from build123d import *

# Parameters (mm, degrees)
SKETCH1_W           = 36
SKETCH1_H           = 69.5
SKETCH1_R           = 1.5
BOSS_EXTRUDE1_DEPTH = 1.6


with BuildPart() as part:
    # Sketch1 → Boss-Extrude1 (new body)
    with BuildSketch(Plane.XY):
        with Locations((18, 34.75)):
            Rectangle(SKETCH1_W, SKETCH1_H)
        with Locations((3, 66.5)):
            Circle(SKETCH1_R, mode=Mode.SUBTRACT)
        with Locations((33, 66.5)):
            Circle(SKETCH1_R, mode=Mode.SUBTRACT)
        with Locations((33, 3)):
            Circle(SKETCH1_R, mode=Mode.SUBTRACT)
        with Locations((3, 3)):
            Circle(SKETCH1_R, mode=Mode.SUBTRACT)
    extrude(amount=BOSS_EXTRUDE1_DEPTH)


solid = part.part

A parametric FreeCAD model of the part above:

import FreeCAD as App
import Part
import Sketcher

V = App.Vector


def add_polygon(sketch, points):
    """Adds a closed chain of lines whose ends are joined by coincident constraints."""
    first, n = sketch.GeometryCount, len(points)
    for a, b in zip(points, points[1:] + points[:1]):
        sketch.addGeometry(Part.LineSegment(App.Vector(*a, 0), App.Vector(*b, 0)), False)
    for i in range(n):
        sketch.addConstraint(Sketcher.Constraint("Coincident", first + i, 2, first + (i + 1) % n, 1))

doc = App.newDocument("Part")
body = doc.addObject("PartDesign::Body", "Body")

# Sketch on XY plane
sketch1 = body.newObject("Sketcher::SketchObject", "Sketch")
sketch1.AttachmentSupport = (doc.getObject("XY_Plane"), [""])
sketch1.MapMode = "FlatFace"
add_polygon(sketch1, [(0, 69.5), (0, 0), (36, 0), (36, 69.5)])  # lines 0-3
sketch1.addGeometry(Part.Circle(V(3, 3, 0), V(0, 0, 1), 1.5), False)  # 4
sketch1.addGeometry(Part.Circle(V(33, 3, 0), V(0, 0, 1), 1.5), False)  # 5
sketch1.addGeometry(Part.Circle(V(3, 66.5, 0), V(0, 0, 1), 1.5), False)  # 6
sketch1.addGeometry(Part.Circle(V(33, 66.5, 0), V(0, 0, 1), 1.5), False)  # 7
sketch1.addConstraint([
    Sketcher.Constraint("Vertical", 0),
    Sketcher.Constraint("Horizontal", 1),
    Sketcher.Constraint("Vertical", 2),
    Sketcher.Constraint("Horizontal", 3),
    Sketcher.Constraint("Coincident", 0, 2, -1, 1),
    Sketcher.Constraint("Equal", 4, 5),
    Sketcher.Constraint("Equal", 5, 6),
    Sketcher.Constraint("Equal", 6, 7),
    Sketcher.Constraint("Horizontal", 4, 3, 5, 3),
    Sketcher.Constraint("Horizontal", 6, 3, 7, 3),
    Sketcher.Constraint("Vertical", 4, 3, 6, 3),
    Sketcher.Constraint("Vertical", 5, 3, 7, 3),
    Sketcher.Constraint("Diameter", 4, 3.0),
    Sketcher.Constraint("DistanceX", 1, 1, 1, 2, 36.0),
    Sketcher.Constraint("DistanceY", 0, 2, 0, 1, 69.5),
    Sketcher.Constraint("DistanceX", -1, 1, 4, 3, 3.0),
    Sketcher.Constraint("DistanceY", -1, 1, 4, 3, 3.0),
    Sketcher.Constraint("DistanceX", -1, 1, 5, 3, 33.0),
    Sketcher.Constraint("DistanceY", 7, 3, 2, 2, 3.0),
])
pad1 = body.newObject("PartDesign::Pad", "Pad")
pad1.Profile = sketch1
pad1.Length = 1.6

doc.recompute()
